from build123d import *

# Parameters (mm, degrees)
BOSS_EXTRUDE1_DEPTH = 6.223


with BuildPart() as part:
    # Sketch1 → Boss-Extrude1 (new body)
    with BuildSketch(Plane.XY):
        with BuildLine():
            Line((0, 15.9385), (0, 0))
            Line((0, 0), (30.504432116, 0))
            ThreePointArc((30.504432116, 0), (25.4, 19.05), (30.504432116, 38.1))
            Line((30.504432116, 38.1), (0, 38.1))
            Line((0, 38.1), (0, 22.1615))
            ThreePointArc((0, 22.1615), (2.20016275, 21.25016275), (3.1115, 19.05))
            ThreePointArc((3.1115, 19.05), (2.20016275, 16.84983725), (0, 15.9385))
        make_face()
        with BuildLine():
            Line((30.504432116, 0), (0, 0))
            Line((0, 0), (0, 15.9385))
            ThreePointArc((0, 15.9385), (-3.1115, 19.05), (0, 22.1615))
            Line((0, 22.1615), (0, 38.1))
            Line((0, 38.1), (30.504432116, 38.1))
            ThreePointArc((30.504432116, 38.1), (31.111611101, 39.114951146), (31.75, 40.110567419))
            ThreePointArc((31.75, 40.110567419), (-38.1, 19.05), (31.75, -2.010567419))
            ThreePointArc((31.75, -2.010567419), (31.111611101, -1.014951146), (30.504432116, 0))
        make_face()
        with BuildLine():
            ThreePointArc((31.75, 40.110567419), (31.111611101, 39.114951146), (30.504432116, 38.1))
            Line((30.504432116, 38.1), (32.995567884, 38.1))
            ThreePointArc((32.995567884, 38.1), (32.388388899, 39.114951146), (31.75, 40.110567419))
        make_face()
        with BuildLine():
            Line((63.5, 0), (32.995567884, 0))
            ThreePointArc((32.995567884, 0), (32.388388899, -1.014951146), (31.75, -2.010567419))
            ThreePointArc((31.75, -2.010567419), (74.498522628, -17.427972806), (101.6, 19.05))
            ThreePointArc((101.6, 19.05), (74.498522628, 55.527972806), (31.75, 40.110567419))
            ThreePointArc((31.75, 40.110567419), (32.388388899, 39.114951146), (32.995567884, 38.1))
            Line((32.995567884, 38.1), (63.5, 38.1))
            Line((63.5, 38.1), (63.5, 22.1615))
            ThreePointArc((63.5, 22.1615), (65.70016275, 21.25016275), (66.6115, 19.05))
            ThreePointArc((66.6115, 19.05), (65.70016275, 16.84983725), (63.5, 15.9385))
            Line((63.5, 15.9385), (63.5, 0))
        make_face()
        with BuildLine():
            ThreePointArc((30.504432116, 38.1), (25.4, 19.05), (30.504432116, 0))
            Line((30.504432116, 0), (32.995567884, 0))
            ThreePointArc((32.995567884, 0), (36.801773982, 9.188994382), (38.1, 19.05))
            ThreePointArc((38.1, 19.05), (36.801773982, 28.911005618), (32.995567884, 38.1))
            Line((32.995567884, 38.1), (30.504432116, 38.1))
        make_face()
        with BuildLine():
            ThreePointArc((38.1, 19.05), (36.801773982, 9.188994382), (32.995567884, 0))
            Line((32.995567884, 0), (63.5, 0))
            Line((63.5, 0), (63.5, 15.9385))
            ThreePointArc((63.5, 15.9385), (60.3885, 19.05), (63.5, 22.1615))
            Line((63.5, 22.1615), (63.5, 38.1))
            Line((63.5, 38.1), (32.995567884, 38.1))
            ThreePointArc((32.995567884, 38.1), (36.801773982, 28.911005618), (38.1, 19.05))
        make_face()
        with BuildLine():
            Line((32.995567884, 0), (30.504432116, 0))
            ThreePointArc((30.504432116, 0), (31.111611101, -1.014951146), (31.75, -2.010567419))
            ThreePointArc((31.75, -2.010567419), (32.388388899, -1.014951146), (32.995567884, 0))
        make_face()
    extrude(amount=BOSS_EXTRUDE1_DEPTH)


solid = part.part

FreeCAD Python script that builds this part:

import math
import FreeCAD as App
import Part
import Sketcher
from FreeCAD import Vector
Q = App.Units.Quantity

doc = App.newDocument("Part")
body = doc.addObject("PartDesign::Body", "Body")

# Sketch on XY plane
sketch1 = body.newObject("Sketcher::SketchObject", "Sketch")
sketch1.AttachmentSupport = (doc.getObject("XY_Plane"), [""])
sketch1.MapMode = "FlatFace"
sketch1.addGeometry(Part.ArcOfCircle(Part.Circle(Vector(0, 19.1, 0), Vector(0, 0, 1), 38.1), math.radians(34), math.radians(326)), False)
sketch1.addGeometry(Part.ArcOfCircle(Part.Circle(Vector(63.5, 19, 0), Vector(0, 0, 1), 38.1), math.radians(-146), math.radians(0)), False)
sketch1.addGeometry(Part.ArcOfCircle(Part.Circle(Vector(63.5, 19.1, 0), Vector(0, 0, 1), 38.1), math.radians(0), math.radians(146)), False)
sketch1.addGeometry(Part.ArcOfCircle(Part.Circle(Vector(0, 19.1, 0), Vector(0, 0, 1), 3.1), math.radians(0), math.radians(90)), False)
sketch1.addGeometry(Part.ArcOfCircle(Part.Circle(Vector(0, 19, 0), Vector(0, 0, 1), 3.1), math.radians(-90), math.radians(0)), False)
sketch1.addGeometry(Part.ArcOfCircle(Part.Circle(Vector(0, 19.1, 0), Vector(0, 0, 1), 3.1), math.radians(90), math.radians(270)), False)
sketch1.addGeometry(Part.ArcOfCircle(Part.Circle(Vector(63.5, 19, 0), Vector(0, 0, 1), 3.1), math.radians(-90), math.radians(0)), False)
sketch1.addGeometry(Part.ArcOfCircle(Part.Circle(Vector(63.5, 19.1, 0), Vector(0, 0, 1), 3.1), math.radians(90), math.radians(270)), False)
sketch1.addGeometry(Part.ArcOfCircle(Part.Circle(Vector(63.5, 19.1, 0), Vector(0, 0, 1), 3.1), math.radians(0), math.radians(90)), False)
sketch1.addConstraint(Sketcher.Constraint("Coincident", 0, 2, 1, 1))
sketch1.addConstraint(Sketcher.Constraint("Tangent", 1, 2, 2, 1))
sketch1.addConstraint(Sketcher.Constraint("Coincident", 2, 2, 0, 1))
sketch1.addConstraint(Sketcher.Constraint("Tangent", 3, 1, 4, 2))
sketch1.addConstraint(Sketcher.Constraint("Tangent", 4, 1, 5, 2))
sketch1.addConstraint(Sketcher.Constraint("Tangent", 5, 1, 3, 2))
sketch1.addConstraint(Sketcher.Constraint("Tangent", 6, 1, 7, 2))
sketch1.addConstraint(Sketcher.Constraint("Tangent", 7, 1, 8, 2))
sketch1.addConstraint(Sketcher.Constraint("Tangent", 8, 1, 6, 2))
sketch1.addConstraint(Sketcher.Constraint("Coincident", 3, 3, 0, 3))
sketch1.addConstraint(Sketcher.Constraint("Coincident", 6, 3, 1, 3))
sketch1.addConstraint(Sketcher.Constraint("Equal", 0, 1))
sketch1.addConstraint(Sketcher.Constraint("Equal", 1, 2))
sketch1.addConstraint(Sketcher.Constraint("Equal", 5, 6))
sketch1.addConstraint(Sketcher.Constraint("PointOnObject", 0, 3, -2))
sketch1.addConstraint(Sketcher.Constraint("PointOnObject", 4, 1, -2))
sketch1.addConstraint(Sketcher.Constraint("PointOnObject", 5, 1, -2))
sketch1.addConstraint(Sketcher.Constraint("Horizontal", 0, 3, 1, 3))
sketch1.addConstraint(Sketcher.Constraint("Horizontal", 8, 3, 1, 2))
sketch1.addConstraint(Sketcher.Constraint("Horizontal", 1, 2, 3, 1))
sketch1.addConstraint(Sketcher.Constraint("Horizontal", 3, 1, 8, 1))
sketch1.addConstraint(Sketcher.Constraint("Vertical", 8, 3, 6, 1))
sketch1.addConstraint(Sketcher.Constraint("Vertical", 6, 1, 7, 1))
sketch1.addConstraint(Sketcher.Constraint("Radius", 0, Q("1.5 in")))
sketch1.addConstraint(Sketcher.Constraint("DistanceX", -1, 1, 1, 2, Q("4 in")))
sketch1.addConstraint(Sketcher.Constraint("Radius", 3, Q("0.1225 in")))
sketch1.addConstraint(Sketcher.Constraint("DistanceY", -1, 1, 0, 3, Q("0.75 in")))
pad1 = body.newObject("PartDesign::Pad", "Pad")
pad1.Profile = sketch1
pad1.Length = Q("0.245 in")

doc.recompute()
